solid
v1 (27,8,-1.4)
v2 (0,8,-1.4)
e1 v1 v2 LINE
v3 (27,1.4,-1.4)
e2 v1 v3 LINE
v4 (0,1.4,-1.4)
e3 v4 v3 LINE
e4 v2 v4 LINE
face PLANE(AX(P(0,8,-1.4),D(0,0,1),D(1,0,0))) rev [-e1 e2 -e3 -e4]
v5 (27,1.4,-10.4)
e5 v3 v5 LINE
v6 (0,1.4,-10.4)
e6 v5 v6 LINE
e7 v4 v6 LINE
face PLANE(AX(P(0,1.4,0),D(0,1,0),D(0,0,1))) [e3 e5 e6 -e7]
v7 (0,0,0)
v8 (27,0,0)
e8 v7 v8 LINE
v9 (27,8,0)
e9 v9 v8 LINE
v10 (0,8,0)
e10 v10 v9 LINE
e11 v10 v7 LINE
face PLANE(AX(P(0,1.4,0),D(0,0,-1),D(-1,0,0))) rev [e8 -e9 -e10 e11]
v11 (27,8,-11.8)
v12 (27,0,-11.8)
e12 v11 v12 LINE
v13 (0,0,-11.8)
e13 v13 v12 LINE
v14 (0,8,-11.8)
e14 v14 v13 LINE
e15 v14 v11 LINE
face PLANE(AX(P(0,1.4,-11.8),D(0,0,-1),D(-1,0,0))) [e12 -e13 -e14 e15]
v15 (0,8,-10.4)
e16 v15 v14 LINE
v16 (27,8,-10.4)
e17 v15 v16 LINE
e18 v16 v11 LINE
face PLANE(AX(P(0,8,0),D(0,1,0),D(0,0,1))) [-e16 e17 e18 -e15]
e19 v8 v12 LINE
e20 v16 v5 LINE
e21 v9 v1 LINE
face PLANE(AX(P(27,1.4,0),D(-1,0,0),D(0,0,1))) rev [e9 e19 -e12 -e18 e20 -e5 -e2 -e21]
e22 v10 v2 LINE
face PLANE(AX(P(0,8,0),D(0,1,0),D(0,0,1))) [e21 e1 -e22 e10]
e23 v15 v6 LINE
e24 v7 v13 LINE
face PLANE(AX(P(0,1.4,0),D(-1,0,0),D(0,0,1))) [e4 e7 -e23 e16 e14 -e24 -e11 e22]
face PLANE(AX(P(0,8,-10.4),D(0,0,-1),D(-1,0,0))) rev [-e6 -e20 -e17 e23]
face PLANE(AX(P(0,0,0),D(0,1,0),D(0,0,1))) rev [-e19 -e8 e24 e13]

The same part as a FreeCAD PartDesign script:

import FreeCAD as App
import Part
import Sketcher

V = App.Vector

doc = App.newDocument("Part")
body = doc.addObject("PartDesign::Body", "Body")

# Sketch on XZ plane
sketch1 = body.newObject("Sketcher::SketchObject", "Sketch")
sketch1.AttachmentSupport = (doc.getObject("XZ_Plane"), [""])
sketch1.MapMode = "FlatFace"
sketch1.addGeometry([
    Part.LineSegment(V(27, -12, 0), V(0, -12, 0)),
    Part.LineSegment(V(0, -12, 0), V(0, 0, 0)),
    Part.LineSegment(V(0, 0, 0), V(27, 0, 0)),
    Part.LineSegment(V(27, 0, 0), V(27, -12, 0)),
], False)
sketch1.addConstraint([
    Sketcher.Constraint("Coincident", 0, 2, 1, 1),
    Sketcher.Constraint("Coincident", 1, 2, 2, 1),
    Sketcher.Constraint("Coincident", 2, 2, 3, 1),
    Sketcher.Constraint("Coincident", 3, 2, 0, 1),
    Sketcher.Constraint("Horizontal", 0),
    Sketcher.Constraint("Vertical", 1),
    Sketcher.Constraint("Horizontal", 2),
    Sketcher.Constraint("Vertical", 3),
    Sketcher.Constraint("Coincident", 1, 2, -1, 1),
    Sketcher.Constraint("DistanceX", 0, 2, 0, 1, 27.0),
    Sketcher.Constraint("DistanceY", 1, 1, 1, 2, 11.8),
])
pad1 = body.newObject("PartDesign::Pad", "Pad")
pad1.Profile = sketch1
pad1.Length = 1.4
pad1.Reversed = True

# Sketch on XZ plane
sketch2 = body.newObject("Sketcher::SketchObject", "Sketch001")
sketch2.AttachmentSupport = (doc.getObject("XZ_Plane"), [""])
sketch2.MapMode = "FlatFace"
sketch2.addGeometry([
    Part.LineSegment(V(0, -11.8, 0), V(0, -10.4, 0)),  # 0
    Part.LineSegment(V(0, -10.4, 0), V(27, -10.4, 0)),  # 1
    Part.LineSegment(V(27, -10.4, 0), V(27, -11.8, 0)),  # 2
    Part.LineSegment(V(27, -11.8, 0), V(0, -11.8, 0)),  # 3
    Part.LineSegment(V(0, -1.4, 0), V(0, 0, 0)),  # 4
    Part.LineSegment(V(0, 0, 0), V(27, 0, 0)),  # 5
    Part.LineSegment(V(27, 0, 0), V(27, -1.4, 0)),  # 6
    Part.LineSegment(V(27, -1.4, 0), V(0, -1.4, 0)),  # 7
], False)
sketch2.addConstraint([
    Sketcher.Constraint("Coincident", 0, 2, 1, 1),
    Sketcher.Constraint("Coincident", 1, 2, 2, 1),
    Sketcher.Constraint("Coincident", 2, 2, 3, 1),
    Sketcher.Constraint("Coincident", 3, 2, 0, 1),
    Sketcher.Constraint("Coincident", 4, 2, 5, 1),
    Sketcher.Constraint("Coincident", 5, 2, 6, 1),
    Sketcher.Constraint("Coincident", 6, 2, 7, 1),
    Sketcher.Constraint("Coincident", 7, 2, 4, 1),
    Sketcher.Constraint("Vertical", 0),
    Sketcher.Constraint("Horizontal", 1),
    Sketcher.Constraint("Vertical", 2),
    Sketcher.Constraint("Horizontal", 3),
    Sketcher.Constraint("Vertical", 4),
    Sketcher.Constraint("Horizontal", 5),
    Sketcher.Constraint("Vertical", 6),
    Sketcher.Constraint("Horizontal", 7),
    Sketcher.Constraint("Coincident", 4, 2, -1, 1),
    Sketcher.Constraint("PointOnObject", 0, 2, -2),
    Sketcher.Constraint("Vertical", 2, 2, 5, 2),
    Sketcher.Constraint("Equal", 2, 4),
    Sketcher.Constraint("DistanceX", 1, 1, 1, 2, 27.0),
    Sketcher.Constraint("DistanceY", 0, 1, 0, 2, 1.4),
    Sketcher.Constraint("DistanceY", 1, 2, 6, 2, 9.0),
])
pad2 = body.newObject("PartDesign::Pad", "Pad001")
pad2.Profile = sketch2
pad2.Length = 8
pad2.Reversed = True

doc.recompute()
